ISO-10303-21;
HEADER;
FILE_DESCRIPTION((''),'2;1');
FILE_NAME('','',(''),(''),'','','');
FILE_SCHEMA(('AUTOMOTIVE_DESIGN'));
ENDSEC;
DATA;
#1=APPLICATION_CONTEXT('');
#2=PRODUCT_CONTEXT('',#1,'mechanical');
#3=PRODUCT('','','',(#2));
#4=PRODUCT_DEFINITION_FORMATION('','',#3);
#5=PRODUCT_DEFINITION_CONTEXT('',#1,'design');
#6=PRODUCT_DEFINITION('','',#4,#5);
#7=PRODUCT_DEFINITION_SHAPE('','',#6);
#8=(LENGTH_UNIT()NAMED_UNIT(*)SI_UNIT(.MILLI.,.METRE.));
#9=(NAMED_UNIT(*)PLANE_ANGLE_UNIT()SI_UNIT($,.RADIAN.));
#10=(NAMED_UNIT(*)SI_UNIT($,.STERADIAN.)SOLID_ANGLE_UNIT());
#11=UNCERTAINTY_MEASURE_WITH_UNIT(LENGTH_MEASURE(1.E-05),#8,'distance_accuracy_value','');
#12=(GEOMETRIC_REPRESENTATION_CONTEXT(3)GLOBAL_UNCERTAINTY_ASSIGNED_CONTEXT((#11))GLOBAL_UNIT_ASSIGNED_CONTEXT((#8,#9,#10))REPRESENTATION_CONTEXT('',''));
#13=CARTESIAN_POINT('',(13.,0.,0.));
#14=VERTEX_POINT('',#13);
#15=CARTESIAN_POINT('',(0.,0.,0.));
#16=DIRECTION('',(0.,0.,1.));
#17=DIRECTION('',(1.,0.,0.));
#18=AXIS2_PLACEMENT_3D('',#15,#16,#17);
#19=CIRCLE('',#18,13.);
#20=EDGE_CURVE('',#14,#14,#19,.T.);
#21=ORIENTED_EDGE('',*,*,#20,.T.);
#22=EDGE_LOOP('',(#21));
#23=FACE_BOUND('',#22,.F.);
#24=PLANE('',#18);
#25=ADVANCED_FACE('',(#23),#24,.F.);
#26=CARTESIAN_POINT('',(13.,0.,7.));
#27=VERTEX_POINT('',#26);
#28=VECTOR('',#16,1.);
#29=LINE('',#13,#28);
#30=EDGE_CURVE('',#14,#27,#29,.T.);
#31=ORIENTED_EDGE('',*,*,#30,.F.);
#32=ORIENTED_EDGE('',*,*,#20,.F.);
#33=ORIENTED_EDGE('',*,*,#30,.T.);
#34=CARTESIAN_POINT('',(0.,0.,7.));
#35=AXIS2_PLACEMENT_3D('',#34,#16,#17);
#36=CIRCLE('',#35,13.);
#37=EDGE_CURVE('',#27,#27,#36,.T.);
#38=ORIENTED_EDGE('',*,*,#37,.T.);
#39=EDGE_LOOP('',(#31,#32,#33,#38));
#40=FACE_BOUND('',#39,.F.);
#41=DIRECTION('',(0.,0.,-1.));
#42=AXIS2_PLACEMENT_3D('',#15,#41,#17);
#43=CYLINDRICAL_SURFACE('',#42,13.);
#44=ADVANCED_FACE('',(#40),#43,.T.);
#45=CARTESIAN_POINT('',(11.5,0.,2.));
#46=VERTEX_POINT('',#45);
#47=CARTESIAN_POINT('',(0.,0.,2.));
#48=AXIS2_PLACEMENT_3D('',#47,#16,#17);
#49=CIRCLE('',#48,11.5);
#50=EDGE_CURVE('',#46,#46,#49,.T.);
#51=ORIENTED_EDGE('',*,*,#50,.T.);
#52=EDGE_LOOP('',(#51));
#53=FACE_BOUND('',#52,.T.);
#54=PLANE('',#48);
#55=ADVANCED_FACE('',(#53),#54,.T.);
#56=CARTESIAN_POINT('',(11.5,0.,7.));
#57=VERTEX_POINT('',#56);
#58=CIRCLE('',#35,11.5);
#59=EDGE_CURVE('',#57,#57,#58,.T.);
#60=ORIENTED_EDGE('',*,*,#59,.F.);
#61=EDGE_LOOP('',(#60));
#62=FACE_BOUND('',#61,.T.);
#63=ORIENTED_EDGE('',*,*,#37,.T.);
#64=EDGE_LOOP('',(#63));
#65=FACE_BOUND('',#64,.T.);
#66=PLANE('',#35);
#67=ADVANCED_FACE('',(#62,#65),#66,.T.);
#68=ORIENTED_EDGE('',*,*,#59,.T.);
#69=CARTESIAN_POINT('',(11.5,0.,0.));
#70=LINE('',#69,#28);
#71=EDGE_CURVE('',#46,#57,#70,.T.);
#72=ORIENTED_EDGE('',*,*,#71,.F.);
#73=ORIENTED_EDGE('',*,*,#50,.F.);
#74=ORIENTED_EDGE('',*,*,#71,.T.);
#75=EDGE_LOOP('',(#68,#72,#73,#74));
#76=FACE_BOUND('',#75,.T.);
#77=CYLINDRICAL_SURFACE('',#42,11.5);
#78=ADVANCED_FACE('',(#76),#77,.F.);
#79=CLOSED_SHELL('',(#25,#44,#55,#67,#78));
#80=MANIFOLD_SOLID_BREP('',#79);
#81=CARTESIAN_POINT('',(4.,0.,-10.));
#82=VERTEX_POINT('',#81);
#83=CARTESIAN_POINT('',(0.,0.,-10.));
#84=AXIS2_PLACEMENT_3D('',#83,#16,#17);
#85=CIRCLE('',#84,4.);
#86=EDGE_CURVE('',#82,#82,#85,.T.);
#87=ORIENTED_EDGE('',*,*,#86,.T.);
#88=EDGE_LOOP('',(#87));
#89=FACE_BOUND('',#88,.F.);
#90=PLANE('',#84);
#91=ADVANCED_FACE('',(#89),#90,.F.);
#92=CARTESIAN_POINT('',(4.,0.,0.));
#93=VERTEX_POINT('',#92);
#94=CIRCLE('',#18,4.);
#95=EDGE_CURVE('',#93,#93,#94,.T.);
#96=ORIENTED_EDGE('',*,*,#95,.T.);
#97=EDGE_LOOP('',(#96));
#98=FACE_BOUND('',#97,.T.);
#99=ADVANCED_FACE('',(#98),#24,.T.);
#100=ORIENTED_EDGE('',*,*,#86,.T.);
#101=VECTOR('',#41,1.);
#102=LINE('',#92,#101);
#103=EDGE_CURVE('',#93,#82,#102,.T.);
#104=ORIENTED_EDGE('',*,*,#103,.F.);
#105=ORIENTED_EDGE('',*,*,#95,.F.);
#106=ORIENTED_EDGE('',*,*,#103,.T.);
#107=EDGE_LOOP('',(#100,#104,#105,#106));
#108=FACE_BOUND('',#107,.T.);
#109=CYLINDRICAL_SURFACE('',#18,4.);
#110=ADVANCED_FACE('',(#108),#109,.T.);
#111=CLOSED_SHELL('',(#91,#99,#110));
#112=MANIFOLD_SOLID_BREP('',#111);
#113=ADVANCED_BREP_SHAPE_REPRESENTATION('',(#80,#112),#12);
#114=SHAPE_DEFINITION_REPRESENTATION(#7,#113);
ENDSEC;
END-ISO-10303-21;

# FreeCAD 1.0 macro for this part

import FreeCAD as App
import Part
import Sketcher
Q = App.Units.Quantity

doc = App.newDocument("Part")
params = doc.addObject("Spreadsheet::Sheet", "Params")
for row, (alias, value) in enumerate([
    ("sketch1_diameter", "8 mm"),
    ("pad1_length", "10 mm"),
    ("sketch2_diameter", "23 mm"),
    ("pad2_length", "2 mm"),
    ("sketch3_diameter", "26 mm"),
    ("sketch3_diameter2", "23 mm"),
    ("pad3_length", "7 mm"),
], start=1):
    params.set(f"A{row}", alias)
    params.set(f"B{row}", "=" + value)
    params.setAlias(f"B{row}", alias)

body = doc.addObject("PartDesign::Body", "Body")

sketch1 = doc.addObject("Sketcher::SketchObject", "Sketch")
body.addObject(sketch1)
sketch1.AttachmentSupport = (doc.XY_Plane, [""])
sketch1.MapMode = "FlatFace"
sketch1.addGeometry(Part.Circle(App.Vector(0, 0, 0), App.Vector(0, 0, 1), 4), False)
sketch1.addConstraint(Sketcher.Constraint("Coincident", 0, 3, -1, 1))
sketch1.addConstraint(Sketcher.Constraint("Diameter", 0, Q("8 mm")))
sketch1.setExpression("Constraints[1]", "Params.sketch1_diameter")
pad1 = doc.addObject("PartDesign::Pad", "Pad")
body.addObject(pad1)
pad1.Profile = sketch1
pad1.setExpression("Length", "Params.pad1_length")
pad1.Reversed = True
body2 = doc.addObject("PartDesign::Body", "Body001")

sketch2 = doc.addObject("Sketcher::SketchObject", "Sketch001")
body2.addObject(sketch2)
sketch2.AttachmentSupport = (doc.getObject("XY_Plane001"), [""])
sketch2.MapMode = "FlatFace"
sketch2.addGeometry(Part.Circle(App.Vector(0, 0, 0), App.Vector(0, 0, 1), 12), False)
sketch2.addConstraint(Sketcher.Constraint("Coincident", 0, 3, -1, 1))
sketch2.addConstraint(Sketcher.Constraint("Diameter", 0, Q("23 mm")))
sketch2.setExpression("Constraints[1]", "Params.sketch2_diameter")
pad2 = doc.addObject("PartDesign::Pad", "Pad001")
body2.addObject(pad2)
pad2.Profile = sketch2
pad2.setExpression("Length", "Params.pad2_length")

sketch3 = doc.addObject("Sketcher::SketchObject", "Sketch002")
body2.addObject(sketch3)
sketch3.AttachmentSupport = (doc.getObject("XY_Plane001"), [""])
sketch3.MapMode = "FlatFace"
sketch3.addGeometry(Part.Circle(App.Vector(0, 0, 0), App.Vector(0, 0, 1), 13), False)
sketch3.addGeometry(Part.Circle(App.Vector(0, 0, 0), App.Vector(0, 0, 1), 12), False)
sketch3.addConstraint(Sketcher.Constraint("Coincident", 0, 3, -1, 1))
sketch3.addConstraint(Sketcher.Constraint("Coincident", 1, 3, -1, 1))
sketch3.addConstraint(Sketcher.Constraint("Diameter", 0, Q("26 mm")))
sketch3.addConstraint(Sketcher.Constraint("Diameter", 1, Q("23 mm")))
sketch3.setExpression("Constraints[2]", "Params.sketch3_diameter")
sketch3.setExpression("Constraints[3]", "Params.sketch3_diameter2")
pad3 = doc.addObject("PartDesign::Pad", "Pad002")
body2.addObject(pad3)
pad3.Profile = sketch3
pad3.setExpression("Length", "Params.pad3_length")

doc.recompute()
